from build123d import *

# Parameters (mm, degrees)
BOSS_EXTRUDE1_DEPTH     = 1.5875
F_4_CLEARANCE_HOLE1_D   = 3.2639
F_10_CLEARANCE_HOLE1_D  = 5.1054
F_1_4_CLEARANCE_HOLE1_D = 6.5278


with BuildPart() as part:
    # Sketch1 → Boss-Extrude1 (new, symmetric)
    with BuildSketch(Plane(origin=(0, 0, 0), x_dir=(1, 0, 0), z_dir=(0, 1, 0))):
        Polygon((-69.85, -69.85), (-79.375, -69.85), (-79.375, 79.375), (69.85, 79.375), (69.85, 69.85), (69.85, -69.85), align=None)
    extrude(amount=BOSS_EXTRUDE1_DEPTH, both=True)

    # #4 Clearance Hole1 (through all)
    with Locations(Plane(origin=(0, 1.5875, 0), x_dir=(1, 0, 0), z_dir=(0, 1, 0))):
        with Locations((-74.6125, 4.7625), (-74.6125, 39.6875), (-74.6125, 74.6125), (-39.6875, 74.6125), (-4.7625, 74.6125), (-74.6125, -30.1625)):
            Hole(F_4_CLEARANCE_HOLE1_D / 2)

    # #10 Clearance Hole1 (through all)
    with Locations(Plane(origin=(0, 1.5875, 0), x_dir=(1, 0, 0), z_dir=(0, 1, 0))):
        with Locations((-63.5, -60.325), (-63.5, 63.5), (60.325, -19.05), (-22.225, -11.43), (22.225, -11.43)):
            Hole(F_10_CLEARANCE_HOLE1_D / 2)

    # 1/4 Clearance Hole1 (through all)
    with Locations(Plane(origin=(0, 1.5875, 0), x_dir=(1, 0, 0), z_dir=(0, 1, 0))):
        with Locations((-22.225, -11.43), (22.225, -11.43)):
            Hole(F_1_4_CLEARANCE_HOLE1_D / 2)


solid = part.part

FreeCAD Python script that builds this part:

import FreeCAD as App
import Part
import Sketcher

V = App.Vector
Q = App.Units.Quantity


def add_polygon(sketch, points):
    """Adds a closed chain of lines whose ends are joined by coincident constraints."""
    first, n = sketch.GeometryCount, len(points)
    for a, b in zip(points, points[1:] + points[:1]):
        sketch.addGeometry(Part.LineSegment(App.Vector(*a, 0), App.Vector(*b, 0)), False)
    for i in range(n):
        sketch.addConstraint(Sketcher.Constraint("Coincident", first + i, 2, first + (i + 1) % n, 1))

doc = App.newDocument("Part")
body = doc.addObject("PartDesign::Body", "Body")

sketch1 = body.newObject("Sketcher::SketchObject", "Sketch")
sketch1.AttachmentSupport = (doc.getObject("XZ_Plane"), [""])
sketch1.MapMode = "FlatFace"
add_polygon(sketch1, [(-79, 70), (70, 70), (70, -79), (-79, -79)])
sketch1.addConstraint(Sketcher.Constraint("Horizontal", 0))
sketch1.addConstraint(Sketcher.Constraint("Vertical", 1))
sketch1.addConstraint(Sketcher.Constraint("Horizontal", 2))
sketch1.addConstraint(Sketcher.Constraint("Vertical", 3))
sketch1.addConstraint(Sketcher.Constraint("Equal", 2, 1))
sketch1.addConstraint(Sketcher.Constraint("DistanceX", 0, 1, 0, 2, Q("5.875 in")))
sketch1.addConstraint(Sketcher.Constraint("DistanceX", -1, 1, 0, 2, Q("2.75 in")))
sketch1.addConstraint(Sketcher.Constraint("DistanceY", -1, 1, 0, 2, Q("2.75 in")))
pad1 = body.newObject("PartDesign::Pad", "Pad")
pad1.Profile = sketch1
pad1.Length = Q("0.125 in")
pad1.Midplane = True

sketch2 = body.newObject("Sketcher::SketchObject", "Sketch001")
sketch2.AttachmentSupport = (doc.getObject("XZ_Plane"), [""])
sketch2.MapMode = "FlatFace"
sketch2.AttachmentOffset = App.Placement(V(0, 0, -0.0625 * 25.4), App.Rotation())
sketch2.addGeometry(Part.Circle(V(-74.6, -4.8, 0), V(0, 0, 1), 1.6), False)
sketch2.addGeometry(Part.Circle(V(-74.6, -39.7, 0), V(0, 0, 1), 1.6), False)
sketch2.addGeometry(Part.Circle(V(-74.6, -74.6, 0), V(0, 0, 1), 1.6), False)
sketch2.addGeometry(Part.Circle(V(-39.7, -74.6, 0), V(0, 0, 1), 1.6), False)
sketch2.addGeometry(Part.Circle(V(-4.8, -74.6, 0), V(0, 0, 1), 1.6), False)
sketch2.addGeometry(Part.Circle(V(-74.6, 30.2, 0), V(0, 0, 1), 1.6), False)
sketch2.addConstraint(Sketcher.Constraint("Equal", 0, 1))
sketch2.addConstraint(Sketcher.Constraint("Equal", 1, 2))
sketch2.addConstraint(Sketcher.Constraint("Equal", 2, 3))
sketch2.addConstraint(Sketcher.Constraint("Equal", 3, 4))
sketch2.addConstraint(Sketcher.Constraint("Equal", 4, 5))
sketch2.addConstraint(Sketcher.Constraint("Horizontal", 2, 3, 3, 3))
sketch2.addConstraint(Sketcher.Constraint("Horizontal", 3, 3, 4, 3))
sketch2.addConstraint(Sketcher.Constraint("Vertical", 0, 3, 1, 3))
sketch2.addConstraint(Sketcher.Constraint("Vertical", 1, 3, 2, 3))
sketch2.addConstraint(Sketcher.Constraint("Vertical", 2, 3, 5, 3))
sketch2.addConstraint(Sketcher.Constraint("Diameter", 0, Q("0.1285 in")))
sketch2.addConstraint(Sketcher.Constraint("DistanceY", 2, 3, 0, 3, Q("2.75 in")))
sketch2.addConstraint(Sketcher.Constraint("DistanceX", 2, 3, 4, 3, Q("2.75 in")))
sketch2.addConstraint(Sketcher.Constraint("DistanceY", 1, 3, 5, 3, Q("2.75 in")))
sketch2.addConstraint(Sketcher.Constraint("DistanceX", 0, 3, -1, 1, Q("2.9375 in")))
sketch2.addConstraint(Sketcher.Constraint("DistanceY", 0, 3, -1, 1, Q("0.1875 in")))
sketch2.addConstraint(Sketcher.Constraint("DistanceY", 1, 3, -1, 1, Q("1.5625 in")))
sketch2.addConstraint(Sketcher.Constraint("DistanceX", 3, 3, -1, 1, Q("1.5625 in")))
doc.recompute()
hole = body.newObject("PartDesign::Hole", "Hole")
hole.Profile = sketch2
hole.ThreadType = "None"
hole.Diameter = Q("0.1285 in")
hole.DepthType = "ThroughAll"
hole.Reversed = True

sketch3 = body.newObject("Sketcher::SketchObject", "Sketch002")
sketch3.AttachmentSupport = (doc.getObject("XZ_Plane"), [""])
sketch3.MapMode = "FlatFace"
sketch3.AttachmentOffset = App.Placement(V(0, 0, -0.0625 * 25.4), App.Rotation())
sketch3.addGeometry(Part.Circle(V(-63.5, 60.3, 0), V(0, 0, 1), 2.6), False)
sketch3.addGeometry(Part.Circle(V(-63.5, -63.5, 0), V(0, 0, 1), 2.6), False)
sketch3.addGeometry(Part.Circle(V(60.3, 19.1, 0), V(0, 0, 1), 2.6), False)
sketch3.addGeometry(Part.Circle(V(-22.2, 11.4, 0), V(0, 0, 1), 2.6), False)
sketch3.addGeometry(Part.Circle(V(22.2, 11.4, 0), V(0, 0, 1), 2.6), False)
sketch3.addConstraint(Sketcher.Constraint("Equal", 0, 1))
sketch3.addConstraint(Sketcher.Constraint("Equal", 1, 2))
sketch3.addConstraint(Sketcher.Constraint("Equal", 2, 3))
sketch3.addConstraint(Sketcher.Constraint("Equal", 3, 4))
sketch3.addConstraint(Sketcher.Constraint("Symmetric", 3, 3, 4, 3, -2))
sketch3.addConstraint(Sketcher.Constraint("Vertical", 0, 3, 1, 3))
sketch3.addConstraint(Sketcher.Constraint("Diameter", 0, Q("0.201 in")))
sketch3.addConstraint(Sketcher.Constraint("DistanceX", 0, 3, -1, 1, Q("2.5 in")))
sketch3.addConstraint(Sketcher.Constraint("DistanceY", 1, 3, -1, 1, Q("2.5 in")))
sketch3.addConstraint(Sketcher.Constraint("DistanceY", 3, 3, 2, 3, Q("0.3 in")))
sketch3.addConstraint(Sketcher.Constraint("DistanceX", 4, 3, 2, 3, Q("1.5 in")))
sketch3.addConstraint(Sketcher.Constraint("DistanceY", -1, 1, 2, 3, Q("0.75 in")))
sketch3.addConstraint(Sketcher.Constraint("DistanceX", 3, 3, 2, 3, Q("3.25 in")))
sketch3.addConstraint(Sketcher.Constraint("DistanceY", -1, 1, 0, 3, Q("2.375 in")))
doc.recompute()
hole2 = body.newObject("PartDesign::Hole", "Hole001")
hole2.Profile = sketch3
hole2.ThreadType = "None"
hole2.Diameter = Q("0.201 in")
hole2.DepthType = "ThroughAll"
hole2.Reversed = True

sketch4 = body.newObject("Sketcher::SketchObject", "Sketch003")
sketch4.AttachmentSupport = (doc.getObject("XZ_Plane"), [""])
sketch4.MapMode = "FlatFace"
sketch4.AttachmentOffset = App.Placement(V(0, 0, -0.0625 * 25.4), App.Rotation())
sketch4.addGeometry(Part.Circle(V(-22.2, 11.4, 0), V(0, 0, 1), 3.3), False)
sketch4.addGeometry(Part.Circle(V(22.2, 11.4, 0), V(0, 0, 1), 3.3), False)
sketch4.addConstraint(Sketcher.Constraint("Equal", 0, 1))
sketch4.addConstraint(Sketcher.Constraint("Symmetric", 0, 3, 1, 3, -2))
sketch4.addConstraint(Sketcher.Constraint("Diameter", 0, Q("0.257 in")))
sketch4.addConstraint(Sketcher.Constraint("DistanceY", -1, 1, 0, 3, Q("0.45 in")))
sketch4.addConstraint(Sketcher.Constraint("DistanceX", 0, 3, 1, 3, Q("1.75 in")))
doc.recompute()
hole3 = body.newObject("PartDesign::Hole", "Hole002")
hole3.Profile = sketch4
hole3.ThreadType = "None"
hole3.Diameter = Q("0.257 in")
hole3.DepthType = "ThroughAll"
hole3.Reversed = True

doc.recompute()
